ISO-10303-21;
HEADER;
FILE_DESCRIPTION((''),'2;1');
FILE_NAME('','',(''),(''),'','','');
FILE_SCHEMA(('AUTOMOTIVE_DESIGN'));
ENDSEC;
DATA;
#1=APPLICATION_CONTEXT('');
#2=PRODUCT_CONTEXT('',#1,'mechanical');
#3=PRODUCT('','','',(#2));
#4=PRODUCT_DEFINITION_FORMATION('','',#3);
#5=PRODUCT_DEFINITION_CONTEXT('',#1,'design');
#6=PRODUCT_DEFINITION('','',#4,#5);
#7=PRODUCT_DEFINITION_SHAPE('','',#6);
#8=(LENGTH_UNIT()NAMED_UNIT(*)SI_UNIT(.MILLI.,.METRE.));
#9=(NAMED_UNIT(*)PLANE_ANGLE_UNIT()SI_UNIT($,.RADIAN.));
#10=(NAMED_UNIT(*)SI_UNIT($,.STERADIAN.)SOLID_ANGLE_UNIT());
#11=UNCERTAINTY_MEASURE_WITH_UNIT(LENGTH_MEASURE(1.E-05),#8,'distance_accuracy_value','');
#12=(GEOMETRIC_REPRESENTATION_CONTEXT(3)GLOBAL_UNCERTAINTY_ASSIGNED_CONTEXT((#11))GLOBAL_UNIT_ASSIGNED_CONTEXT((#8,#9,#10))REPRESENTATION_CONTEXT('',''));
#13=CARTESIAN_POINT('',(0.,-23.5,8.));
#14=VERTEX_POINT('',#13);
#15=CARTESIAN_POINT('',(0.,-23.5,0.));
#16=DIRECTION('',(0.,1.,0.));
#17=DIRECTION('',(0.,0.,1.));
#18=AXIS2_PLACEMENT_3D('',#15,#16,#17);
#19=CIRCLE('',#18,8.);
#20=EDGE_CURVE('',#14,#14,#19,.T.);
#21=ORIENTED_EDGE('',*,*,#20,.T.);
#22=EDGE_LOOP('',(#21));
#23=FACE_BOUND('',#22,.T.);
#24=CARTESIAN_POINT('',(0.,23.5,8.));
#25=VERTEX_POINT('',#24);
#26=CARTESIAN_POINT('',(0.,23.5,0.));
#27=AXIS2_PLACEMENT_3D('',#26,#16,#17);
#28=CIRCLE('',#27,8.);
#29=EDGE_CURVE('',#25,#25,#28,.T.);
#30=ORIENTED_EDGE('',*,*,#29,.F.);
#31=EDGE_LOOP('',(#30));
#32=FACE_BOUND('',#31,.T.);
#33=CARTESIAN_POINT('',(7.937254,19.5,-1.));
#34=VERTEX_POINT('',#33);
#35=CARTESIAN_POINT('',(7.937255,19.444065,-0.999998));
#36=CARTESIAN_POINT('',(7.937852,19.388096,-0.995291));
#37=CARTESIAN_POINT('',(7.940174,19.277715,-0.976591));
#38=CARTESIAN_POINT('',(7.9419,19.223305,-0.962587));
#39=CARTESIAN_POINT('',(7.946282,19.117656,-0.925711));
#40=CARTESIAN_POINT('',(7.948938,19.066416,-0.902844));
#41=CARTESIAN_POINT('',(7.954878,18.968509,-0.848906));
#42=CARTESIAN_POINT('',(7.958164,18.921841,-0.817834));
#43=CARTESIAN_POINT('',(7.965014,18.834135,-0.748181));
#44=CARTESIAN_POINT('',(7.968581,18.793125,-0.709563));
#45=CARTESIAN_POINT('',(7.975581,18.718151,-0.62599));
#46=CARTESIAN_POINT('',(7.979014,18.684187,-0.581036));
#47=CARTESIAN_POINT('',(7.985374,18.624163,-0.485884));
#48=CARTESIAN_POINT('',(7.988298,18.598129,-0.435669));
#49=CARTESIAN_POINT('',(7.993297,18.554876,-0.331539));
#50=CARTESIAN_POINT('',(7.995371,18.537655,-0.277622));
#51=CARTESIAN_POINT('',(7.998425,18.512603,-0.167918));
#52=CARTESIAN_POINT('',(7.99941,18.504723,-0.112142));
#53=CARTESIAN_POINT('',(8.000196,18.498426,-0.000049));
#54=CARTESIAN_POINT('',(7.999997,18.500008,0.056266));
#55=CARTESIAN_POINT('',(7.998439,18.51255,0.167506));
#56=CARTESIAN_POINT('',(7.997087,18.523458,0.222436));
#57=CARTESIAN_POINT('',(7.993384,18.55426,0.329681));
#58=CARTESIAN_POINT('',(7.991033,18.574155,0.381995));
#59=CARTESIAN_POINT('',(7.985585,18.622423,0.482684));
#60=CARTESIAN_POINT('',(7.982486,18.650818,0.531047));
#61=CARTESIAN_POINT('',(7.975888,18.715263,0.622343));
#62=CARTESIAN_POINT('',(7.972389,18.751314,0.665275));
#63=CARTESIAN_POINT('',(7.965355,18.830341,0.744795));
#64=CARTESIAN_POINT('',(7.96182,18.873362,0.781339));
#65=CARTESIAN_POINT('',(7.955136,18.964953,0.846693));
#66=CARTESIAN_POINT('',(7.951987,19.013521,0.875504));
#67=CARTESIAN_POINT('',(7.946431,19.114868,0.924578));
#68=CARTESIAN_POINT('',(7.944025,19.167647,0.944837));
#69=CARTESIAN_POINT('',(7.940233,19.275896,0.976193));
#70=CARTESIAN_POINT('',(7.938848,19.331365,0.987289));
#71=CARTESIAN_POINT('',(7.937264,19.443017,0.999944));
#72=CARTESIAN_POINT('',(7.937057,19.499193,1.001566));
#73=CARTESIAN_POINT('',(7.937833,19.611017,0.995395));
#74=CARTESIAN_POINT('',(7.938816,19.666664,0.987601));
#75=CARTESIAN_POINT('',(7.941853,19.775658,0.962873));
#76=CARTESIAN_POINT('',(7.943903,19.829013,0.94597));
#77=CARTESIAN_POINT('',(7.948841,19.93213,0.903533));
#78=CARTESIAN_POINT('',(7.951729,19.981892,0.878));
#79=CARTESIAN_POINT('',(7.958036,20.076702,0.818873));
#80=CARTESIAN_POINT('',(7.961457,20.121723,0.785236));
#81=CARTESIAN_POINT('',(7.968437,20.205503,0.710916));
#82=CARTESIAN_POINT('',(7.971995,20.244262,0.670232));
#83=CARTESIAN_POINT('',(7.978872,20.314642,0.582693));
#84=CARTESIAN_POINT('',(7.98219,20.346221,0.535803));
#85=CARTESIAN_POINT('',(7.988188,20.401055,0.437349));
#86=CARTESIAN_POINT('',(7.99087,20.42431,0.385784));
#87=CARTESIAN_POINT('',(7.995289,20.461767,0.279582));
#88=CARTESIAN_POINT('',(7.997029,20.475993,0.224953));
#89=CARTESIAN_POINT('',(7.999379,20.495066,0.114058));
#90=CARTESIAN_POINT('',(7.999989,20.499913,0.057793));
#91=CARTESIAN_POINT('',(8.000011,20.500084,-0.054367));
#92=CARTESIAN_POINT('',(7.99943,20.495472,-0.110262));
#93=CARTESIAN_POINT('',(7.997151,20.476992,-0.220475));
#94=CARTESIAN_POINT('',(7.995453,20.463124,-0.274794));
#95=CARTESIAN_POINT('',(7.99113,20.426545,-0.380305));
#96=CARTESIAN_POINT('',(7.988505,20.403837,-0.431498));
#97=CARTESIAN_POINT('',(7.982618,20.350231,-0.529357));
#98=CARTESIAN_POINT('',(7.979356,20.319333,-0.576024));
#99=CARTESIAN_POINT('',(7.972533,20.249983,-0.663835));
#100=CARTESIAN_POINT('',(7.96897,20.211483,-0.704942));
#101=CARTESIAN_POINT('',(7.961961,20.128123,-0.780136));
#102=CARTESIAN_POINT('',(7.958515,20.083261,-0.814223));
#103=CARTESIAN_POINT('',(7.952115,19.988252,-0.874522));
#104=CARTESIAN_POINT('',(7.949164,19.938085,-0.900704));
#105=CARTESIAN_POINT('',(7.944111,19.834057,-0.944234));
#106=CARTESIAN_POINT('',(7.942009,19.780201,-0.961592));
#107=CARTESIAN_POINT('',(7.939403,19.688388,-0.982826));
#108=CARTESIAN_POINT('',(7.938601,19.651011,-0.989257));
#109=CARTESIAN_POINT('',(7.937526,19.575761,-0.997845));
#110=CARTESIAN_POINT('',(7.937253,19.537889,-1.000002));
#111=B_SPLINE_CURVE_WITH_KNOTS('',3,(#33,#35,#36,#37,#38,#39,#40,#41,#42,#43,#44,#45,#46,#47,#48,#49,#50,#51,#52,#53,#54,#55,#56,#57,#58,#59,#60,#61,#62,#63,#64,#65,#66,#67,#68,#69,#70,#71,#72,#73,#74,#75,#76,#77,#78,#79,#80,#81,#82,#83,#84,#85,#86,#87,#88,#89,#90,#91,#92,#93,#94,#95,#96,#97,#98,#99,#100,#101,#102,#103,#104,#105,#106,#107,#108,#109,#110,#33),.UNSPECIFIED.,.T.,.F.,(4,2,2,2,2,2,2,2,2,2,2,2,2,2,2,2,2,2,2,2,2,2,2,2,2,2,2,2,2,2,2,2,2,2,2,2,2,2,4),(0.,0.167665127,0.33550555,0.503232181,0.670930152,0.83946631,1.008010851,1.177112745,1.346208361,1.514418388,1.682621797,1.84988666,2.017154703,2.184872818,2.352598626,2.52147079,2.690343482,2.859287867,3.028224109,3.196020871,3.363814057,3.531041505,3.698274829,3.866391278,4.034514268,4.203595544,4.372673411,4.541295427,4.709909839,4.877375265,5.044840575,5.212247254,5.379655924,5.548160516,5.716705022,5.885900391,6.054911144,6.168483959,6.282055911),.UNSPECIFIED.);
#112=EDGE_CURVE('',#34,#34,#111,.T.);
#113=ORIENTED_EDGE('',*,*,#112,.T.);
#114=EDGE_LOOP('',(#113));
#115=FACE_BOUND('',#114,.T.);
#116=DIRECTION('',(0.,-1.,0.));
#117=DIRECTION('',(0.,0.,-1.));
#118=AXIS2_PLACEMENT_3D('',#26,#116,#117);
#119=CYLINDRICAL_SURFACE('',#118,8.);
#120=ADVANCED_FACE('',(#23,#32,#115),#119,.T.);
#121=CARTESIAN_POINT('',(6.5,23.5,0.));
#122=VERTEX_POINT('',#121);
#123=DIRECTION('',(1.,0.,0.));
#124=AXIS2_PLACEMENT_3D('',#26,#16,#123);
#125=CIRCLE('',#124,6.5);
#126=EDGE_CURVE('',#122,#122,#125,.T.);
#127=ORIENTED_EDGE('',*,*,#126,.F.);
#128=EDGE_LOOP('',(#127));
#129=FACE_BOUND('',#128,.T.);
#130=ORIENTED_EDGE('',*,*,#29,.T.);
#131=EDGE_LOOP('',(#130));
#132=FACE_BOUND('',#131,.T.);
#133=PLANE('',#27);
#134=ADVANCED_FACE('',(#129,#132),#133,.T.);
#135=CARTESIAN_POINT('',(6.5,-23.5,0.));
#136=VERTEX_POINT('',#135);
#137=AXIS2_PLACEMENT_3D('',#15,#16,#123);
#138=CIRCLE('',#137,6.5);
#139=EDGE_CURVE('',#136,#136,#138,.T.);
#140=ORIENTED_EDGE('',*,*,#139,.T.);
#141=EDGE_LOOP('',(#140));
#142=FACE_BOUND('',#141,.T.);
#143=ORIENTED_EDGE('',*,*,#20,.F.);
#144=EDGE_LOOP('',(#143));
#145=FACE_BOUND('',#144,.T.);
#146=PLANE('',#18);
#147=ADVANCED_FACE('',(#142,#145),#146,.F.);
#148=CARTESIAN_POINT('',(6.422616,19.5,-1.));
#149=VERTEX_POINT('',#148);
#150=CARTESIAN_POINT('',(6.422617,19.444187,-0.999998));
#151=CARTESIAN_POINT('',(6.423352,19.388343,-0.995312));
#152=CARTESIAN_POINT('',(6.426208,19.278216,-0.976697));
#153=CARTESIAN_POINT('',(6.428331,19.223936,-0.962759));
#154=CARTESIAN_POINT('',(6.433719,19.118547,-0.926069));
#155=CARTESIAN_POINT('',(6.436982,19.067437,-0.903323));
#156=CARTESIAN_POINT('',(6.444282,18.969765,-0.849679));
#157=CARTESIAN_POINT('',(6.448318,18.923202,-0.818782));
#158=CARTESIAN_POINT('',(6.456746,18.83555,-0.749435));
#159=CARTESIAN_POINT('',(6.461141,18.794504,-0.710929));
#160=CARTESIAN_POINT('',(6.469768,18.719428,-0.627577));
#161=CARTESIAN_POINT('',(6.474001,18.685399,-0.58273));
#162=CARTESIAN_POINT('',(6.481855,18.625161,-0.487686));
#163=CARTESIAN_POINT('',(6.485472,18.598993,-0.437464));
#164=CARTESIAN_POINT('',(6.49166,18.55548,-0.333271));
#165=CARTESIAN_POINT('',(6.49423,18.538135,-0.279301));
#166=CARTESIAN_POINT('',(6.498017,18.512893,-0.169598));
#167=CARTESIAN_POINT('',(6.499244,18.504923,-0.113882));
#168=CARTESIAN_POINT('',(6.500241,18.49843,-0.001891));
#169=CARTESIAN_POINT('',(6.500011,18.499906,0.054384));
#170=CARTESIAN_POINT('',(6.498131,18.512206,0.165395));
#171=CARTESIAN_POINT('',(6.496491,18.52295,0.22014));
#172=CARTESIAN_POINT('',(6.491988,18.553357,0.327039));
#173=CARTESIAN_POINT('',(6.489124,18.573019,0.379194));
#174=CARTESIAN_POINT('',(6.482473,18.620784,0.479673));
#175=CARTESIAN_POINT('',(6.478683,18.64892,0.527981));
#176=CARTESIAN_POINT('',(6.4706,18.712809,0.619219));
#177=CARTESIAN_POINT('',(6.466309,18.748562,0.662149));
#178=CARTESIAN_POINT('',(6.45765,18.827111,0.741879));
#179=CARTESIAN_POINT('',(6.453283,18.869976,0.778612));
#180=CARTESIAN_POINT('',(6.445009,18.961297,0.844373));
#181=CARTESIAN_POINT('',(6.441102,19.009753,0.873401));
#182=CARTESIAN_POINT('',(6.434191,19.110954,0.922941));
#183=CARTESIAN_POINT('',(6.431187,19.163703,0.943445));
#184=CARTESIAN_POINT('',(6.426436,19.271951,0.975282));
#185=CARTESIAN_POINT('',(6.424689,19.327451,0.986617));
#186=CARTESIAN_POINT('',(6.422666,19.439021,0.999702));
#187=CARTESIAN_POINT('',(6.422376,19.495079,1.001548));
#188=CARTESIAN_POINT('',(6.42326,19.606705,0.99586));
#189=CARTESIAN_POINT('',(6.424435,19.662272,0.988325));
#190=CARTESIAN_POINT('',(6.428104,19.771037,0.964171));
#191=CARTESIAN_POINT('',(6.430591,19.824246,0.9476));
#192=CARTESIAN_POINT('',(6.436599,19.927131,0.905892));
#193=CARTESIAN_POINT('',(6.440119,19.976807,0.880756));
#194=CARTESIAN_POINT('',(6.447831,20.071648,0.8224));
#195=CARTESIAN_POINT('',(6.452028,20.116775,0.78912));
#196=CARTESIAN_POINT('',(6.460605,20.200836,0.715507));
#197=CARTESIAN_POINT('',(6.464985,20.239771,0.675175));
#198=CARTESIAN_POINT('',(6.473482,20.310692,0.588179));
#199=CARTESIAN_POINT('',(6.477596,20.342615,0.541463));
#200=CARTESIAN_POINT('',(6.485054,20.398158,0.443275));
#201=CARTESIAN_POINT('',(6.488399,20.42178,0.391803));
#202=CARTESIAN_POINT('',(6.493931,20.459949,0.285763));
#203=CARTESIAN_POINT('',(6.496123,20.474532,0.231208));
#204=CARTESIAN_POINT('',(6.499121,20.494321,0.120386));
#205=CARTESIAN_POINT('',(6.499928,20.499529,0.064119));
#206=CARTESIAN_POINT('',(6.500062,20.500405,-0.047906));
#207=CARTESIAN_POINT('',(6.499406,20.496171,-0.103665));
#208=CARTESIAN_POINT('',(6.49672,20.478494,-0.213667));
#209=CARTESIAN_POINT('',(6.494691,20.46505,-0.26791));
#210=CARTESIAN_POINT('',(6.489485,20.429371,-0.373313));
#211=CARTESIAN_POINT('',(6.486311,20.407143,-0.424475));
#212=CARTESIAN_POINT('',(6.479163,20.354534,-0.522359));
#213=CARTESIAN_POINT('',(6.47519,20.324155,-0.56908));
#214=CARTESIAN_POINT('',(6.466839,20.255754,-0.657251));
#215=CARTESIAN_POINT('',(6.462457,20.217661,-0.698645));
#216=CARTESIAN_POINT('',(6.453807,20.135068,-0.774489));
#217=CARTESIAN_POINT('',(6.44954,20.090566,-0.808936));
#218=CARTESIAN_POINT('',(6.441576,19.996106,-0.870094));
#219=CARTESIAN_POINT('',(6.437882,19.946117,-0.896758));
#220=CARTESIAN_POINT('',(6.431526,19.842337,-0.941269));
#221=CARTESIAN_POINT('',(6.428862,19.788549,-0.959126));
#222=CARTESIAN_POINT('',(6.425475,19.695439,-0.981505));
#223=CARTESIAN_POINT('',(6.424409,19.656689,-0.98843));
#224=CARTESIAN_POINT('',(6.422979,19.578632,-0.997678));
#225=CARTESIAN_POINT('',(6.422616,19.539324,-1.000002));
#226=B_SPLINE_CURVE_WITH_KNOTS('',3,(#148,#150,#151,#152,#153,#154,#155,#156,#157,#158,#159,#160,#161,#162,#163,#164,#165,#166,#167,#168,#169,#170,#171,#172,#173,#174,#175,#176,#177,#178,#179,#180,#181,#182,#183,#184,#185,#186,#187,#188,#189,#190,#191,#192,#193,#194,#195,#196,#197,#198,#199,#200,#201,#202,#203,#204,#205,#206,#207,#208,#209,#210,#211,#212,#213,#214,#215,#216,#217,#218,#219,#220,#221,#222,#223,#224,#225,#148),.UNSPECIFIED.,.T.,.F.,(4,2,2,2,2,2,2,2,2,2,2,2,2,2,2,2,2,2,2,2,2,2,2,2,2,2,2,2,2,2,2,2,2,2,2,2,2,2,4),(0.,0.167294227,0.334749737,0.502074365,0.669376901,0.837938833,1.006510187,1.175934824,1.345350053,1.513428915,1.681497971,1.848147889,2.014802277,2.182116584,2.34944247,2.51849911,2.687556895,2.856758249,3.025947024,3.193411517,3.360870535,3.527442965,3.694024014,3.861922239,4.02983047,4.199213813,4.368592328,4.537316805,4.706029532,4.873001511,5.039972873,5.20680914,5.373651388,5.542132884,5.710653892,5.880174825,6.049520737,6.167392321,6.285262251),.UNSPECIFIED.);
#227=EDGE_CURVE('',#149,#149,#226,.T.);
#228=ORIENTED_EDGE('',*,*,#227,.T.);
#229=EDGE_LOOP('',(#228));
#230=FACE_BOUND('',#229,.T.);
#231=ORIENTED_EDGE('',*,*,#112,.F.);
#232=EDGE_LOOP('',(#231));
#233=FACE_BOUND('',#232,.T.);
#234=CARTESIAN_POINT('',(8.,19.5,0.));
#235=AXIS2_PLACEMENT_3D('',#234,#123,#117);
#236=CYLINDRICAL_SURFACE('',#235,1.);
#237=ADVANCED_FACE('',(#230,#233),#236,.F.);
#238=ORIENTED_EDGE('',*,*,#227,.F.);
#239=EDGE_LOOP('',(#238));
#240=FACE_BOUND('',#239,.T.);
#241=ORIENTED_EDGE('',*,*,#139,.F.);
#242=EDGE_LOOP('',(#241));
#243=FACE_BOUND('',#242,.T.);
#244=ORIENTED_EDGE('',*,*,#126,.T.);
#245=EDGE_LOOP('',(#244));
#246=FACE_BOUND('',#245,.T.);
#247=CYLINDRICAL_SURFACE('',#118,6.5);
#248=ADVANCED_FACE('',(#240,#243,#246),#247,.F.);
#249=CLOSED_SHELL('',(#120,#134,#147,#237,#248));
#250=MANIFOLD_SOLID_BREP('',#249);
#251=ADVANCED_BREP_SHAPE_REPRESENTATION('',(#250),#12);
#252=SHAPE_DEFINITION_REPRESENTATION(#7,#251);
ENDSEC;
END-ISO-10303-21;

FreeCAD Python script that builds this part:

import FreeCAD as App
import Part
import Sketcher

V = App.Vector

doc = App.newDocument("Part")
body = doc.addObject("PartDesign::Body", "Body")

# Sketch on XZ plane
sketch1 = doc.addObject("Sketcher::SketchObject", "Sketch")
body.addObject(sketch1)
sketch1.AttachmentSupport = (doc.XZ_Plane, [""])
sketch1.MapMode = "FlatFace"
sketch1.addGeometry([
    Part.Circle(V(0, 0, 0), V(0, 0, 1), 8),
    Part.Circle(V(0, 0, 0), V(0, 0, 1), 6),
], False)
sketch1.addConstraint([
    Sketcher.Constraint("Coincident", 0, 3, -1, 1),
    Sketcher.Constraint("Coincident", 1, 3, -1, 1),
    Sketcher.Constraint("Diameter", 0, 16.0),
    Sketcher.Constraint("Diameter", 1, 13.0),
])
pad1 = doc.addObject("PartDesign::Pad", "Pad")
body.addObject(pad1)
pad1.Profile = sketch1
pad1.Length = 47
pad1.Midplane = True

# Sketch on YZ plane
sketch2 = doc.addObject("Sketcher::SketchObject", "Sketch001")
body.addObject(sketch2)
sketch2.AttachmentSupport = (doc.YZ_Plane, [""])
sketch2.MapMode = "FlatFace"
sketch2.AttachmentOffset = App.Placement(V(0, 0, 8), App.Rotation())
sketch2.addGeometry(Part.Circle(V(19.5, 0, 0), V(0, 0, 1), 1), False)
sketch2.addConstraint([
    Sketcher.Constraint("PointOnObject", 0, 3, -1),
    Sketcher.Constraint("Diameter", 0, 2.0),
    Sketcher.Constraint("DistanceX", -1, 1, 0, 3, 19.5),
])
pocket1 = doc.addObject("PartDesign::Pocket", "Pocket")
body.addObject(pocket1)
pocket1.Profile = sketch2
pocket1.Length = 1.577384

doc.recompute()
